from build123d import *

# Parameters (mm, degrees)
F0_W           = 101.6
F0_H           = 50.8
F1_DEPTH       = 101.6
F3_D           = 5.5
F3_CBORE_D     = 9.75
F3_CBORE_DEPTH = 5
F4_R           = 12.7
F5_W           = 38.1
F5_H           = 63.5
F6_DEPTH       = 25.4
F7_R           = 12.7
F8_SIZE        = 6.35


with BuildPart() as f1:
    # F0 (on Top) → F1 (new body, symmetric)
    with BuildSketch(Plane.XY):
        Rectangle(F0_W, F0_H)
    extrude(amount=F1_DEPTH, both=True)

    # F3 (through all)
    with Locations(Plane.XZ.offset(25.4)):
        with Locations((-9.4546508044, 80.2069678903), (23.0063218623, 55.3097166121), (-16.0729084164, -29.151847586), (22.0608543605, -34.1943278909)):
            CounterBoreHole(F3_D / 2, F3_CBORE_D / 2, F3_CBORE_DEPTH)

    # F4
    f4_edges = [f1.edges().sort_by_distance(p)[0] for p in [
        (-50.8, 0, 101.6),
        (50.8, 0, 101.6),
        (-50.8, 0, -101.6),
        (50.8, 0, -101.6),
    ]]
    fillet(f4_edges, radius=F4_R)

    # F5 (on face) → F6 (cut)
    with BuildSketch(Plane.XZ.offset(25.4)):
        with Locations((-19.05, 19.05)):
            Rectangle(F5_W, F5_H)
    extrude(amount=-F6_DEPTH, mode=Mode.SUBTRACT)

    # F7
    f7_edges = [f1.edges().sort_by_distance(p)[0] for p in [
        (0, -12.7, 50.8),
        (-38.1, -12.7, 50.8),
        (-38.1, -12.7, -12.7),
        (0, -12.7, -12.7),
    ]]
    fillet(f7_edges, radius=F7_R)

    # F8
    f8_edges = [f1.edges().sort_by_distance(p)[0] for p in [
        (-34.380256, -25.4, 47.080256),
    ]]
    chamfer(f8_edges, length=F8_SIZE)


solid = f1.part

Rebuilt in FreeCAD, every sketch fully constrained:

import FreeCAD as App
import Part
import Sketcher
Q = App.Units.Quantity


def edges_at(feature, points):
    """Names of the edges that pass closest to the given points."""
    edges = feature.Shape.Edges
    near = lambda p: min(range(len(edges)), key=lambda i: edges[i].distToShape(Part.Vertex(*p))[0])
    return sorted({f"Edge{near(p) + 1}" for p in points})


def add_polygon(sketch, points):
    """Adds a closed chain of lines whose ends are joined by coincident constraints."""
    first, n = sketch.GeometryCount, len(points)
    for a, b in zip(points, points[1:] + points[:1]):
        sketch.addGeometry(Part.LineSegment(App.Vector(*a, 0), App.Vector(*b, 0)), False)
    for i in range(n):
        sketch.addConstraint(Sketcher.Constraint("Coincident", first + i, 2, first + (i + 1) % n, 1))

doc = App.newDocument("Part")
params = doc.addObject("Spreadsheet::Sheet", "Params")
for row, (alias, value) in enumerate([
    ("sketch1_width", "4 in"),
    ("sketch1_height", "2 in"),
    ("pad1_length", "8 in"),
    ("hole_diameter", "5.5 mm"),
    ("hole_cbore_diameter", "9.75 mm"),
    ("hole_cbore_depth", "5 mm"),
    ("fillet_radius", "0.5 in"),
    ("sketch3_width", "1.5 in"),
    ("sketch3_height", "2.5 in"),
    ("pocket1_length", "1 in"),
    ("fillet2_radius", "0.5 in"),
    ("chamfer_size", "0.25 in"),
], start=1):
    params.set(f"A{row}", alias)
    params.set(f"B{row}", "=" + value)
    params.setAlias(f"B{row}", alias)

body = doc.addObject("PartDesign::Body", "Body")

sketch1 = body.newObject("Sketcher::SketchObject", "Sketch")
sketch1.AttachmentSupport = (doc.getObject("XY_Plane"), [""])
sketch1.MapMode = "FlatFace"
add_polygon(sketch1, [(-51, 25), (-51, -25), (51, -25), (51, 25)])
sketch1.addConstraint(Sketcher.Constraint("Vertical", 0))
sketch1.addConstraint(Sketcher.Constraint("Horizontal", 1))
sketch1.addConstraint(Sketcher.Constraint("Vertical", 2))
sketch1.addConstraint(Sketcher.Constraint("Horizontal", 3))
sketch1.addConstraint(Sketcher.Constraint("Symmetric", 0, 2, 2, 2, -1, 1))
sketch1.addConstraint(Sketcher.Constraint("DistanceX", 1, 1, 1, 2, Q("4 in")))
sketch1.addConstraint(Sketcher.Constraint("DistanceY", 0, 2, 0, 1, Q("2 in")))
sketch1.setExpression("Constraints[9]", "Params.sketch1_width")
sketch1.setExpression("Constraints[10]", "Params.sketch1_height")
pad1 = body.newObject("PartDesign::Pad", "Pad")
pad1.Profile = sketch1
pad1.setExpression("Length", "Params.pad1_length")
pad1.Midplane = True

sketch2 = body.newObject("Sketcher::SketchObject", "Sketch001")
sketch2.AttachmentSupport = (doc.getObject("XZ_Plane"), [""])
sketch2.MapMode = "FlatFace"
sketch2.AttachmentOffset = App.Placement(App.Vector(0, 0, 1 * 25.4), App.Rotation())
sketch2.addGeometry(Part.Circle(App.Vector(-9.5, 80.2, 0), App.Vector(0, 0, 1), 2.8), False)
sketch2.addGeometry(Part.Circle(App.Vector(23, 55.3, 0), App.Vector(0, 0, 1), 2.8), False)
sketch2.addGeometry(Part.Circle(App.Vector(-16.1, -29.2, 0), App.Vector(0, 0, 1), 2.8), False)
sketch2.addGeometry(Part.Circle(App.Vector(22.1, -34.2, 0), App.Vector(0, 0, 1), 2.8), False)
sketch2.addConstraint(Sketcher.Constraint("Equal", 0, 1))
sketch2.addConstraint(Sketcher.Constraint("Equal", 1, 2))
sketch2.addConstraint(Sketcher.Constraint("Equal", 2, 3))
sketch2.addConstraint(Sketcher.Constraint("Diameter", 0, 5.5))
sketch2.addConstraint(Sketcher.Constraint("DistanceX", 0, 3, -1, 1, 9.454651))
sketch2.addConstraint(Sketcher.Constraint("DistanceX", -1, 1, 1, 3, 23.006322))
sketch2.addConstraint(Sketcher.Constraint("DistanceX", 2, 3, -1, 1, 16.072908))
sketch2.addConstraint(Sketcher.Constraint("DistanceY", 1, 3, 0, 3, 24.897251))
sketch2.addConstraint(Sketcher.Constraint("DistanceY", 3, 3, 2, 3, 5.04248))
sketch2.addConstraint(Sketcher.Constraint("DistanceY", -1, 1, 0, 3, 80.206968))
sketch2.addConstraint(Sketcher.Constraint("DistanceY", 2, 3, -1, 1, 29.151848))
sketch2.addConstraint(Sketcher.Constraint("DistanceX", -1, 1, 3, 3, 22.060854))
doc.recompute()
hole = body.newObject("PartDesign::Hole", "Hole")
hole.Profile = sketch2
hole.ThreadType = "None"
hole.setExpression("Diameter", "Params.hole_diameter")
hole.DepthType = "ThroughAll"
hole.HoleCutType = "Counterbore"
hole.setExpression("HoleCutDiameter", "Params.hole_cbore_diameter")
hole.setExpression("HoleCutDepth", "Params.hole_cbore_depth")
doc.recompute()

fillet = body.newObject("PartDesign::Fillet", "Fillet")
fillet.Base = (hole, edges_at(hole, [
    (-50.8, 0, 101.6),
    (50.8, 0, 101.6),
    (-50.8, 0, -101.6),
    (50.8, 0, -101.6),
]))
fillet.setExpression("Radius", "Params.fillet_radius")

sketch3 = body.newObject("Sketcher::SketchObject", "Sketch002")
sketch3.AttachmentSupport = (doc.getObject("XZ_Plane"), [""])
sketch3.MapMode = "FlatFace"
sketch3.AttachmentOffset = App.Placement(App.Vector(0, 0, 1 * 25.4), App.Rotation())
add_polygon(sketch3, [(-38, 51), (-38, -13), (0, -13), (0, 51)])
sketch3.addConstraint(Sketcher.Constraint("Vertical", 0))
sketch3.addConstraint(Sketcher.Constraint("Horizontal", 1))
sketch3.addConstraint(Sketcher.Constraint("Vertical", 2))
sketch3.addConstraint(Sketcher.Constraint("Horizontal", 3))
sketch3.addConstraint(Sketcher.Constraint("PointOnObject", 1, 2, -2))
sketch3.addConstraint(Sketcher.Constraint("DistanceX", 1, 1, 1, 2, Q("1.5 in")))
sketch3.addConstraint(Sketcher.Constraint("DistanceY", 0, 2, 0, 1, Q("2.5 in")))
sketch3.addConstraint(Sketcher.Constraint("DistanceY", -1, 1, 2, 2, Q("2 in")))
sketch3.setExpression("Constraints[9]", "Params.sketch3_width")
sketch3.setExpression("Constraints[10]", "Params.sketch3_height")
pocket1 = body.newObject("PartDesign::Pocket", "Pocket")
pocket1.Profile = sketch3
pocket1.setExpression("Length", "Params.pocket1_length")
doc.recompute()

fillet2 = body.newObject("PartDesign::Fillet", "Fillet001")
fillet2.Base = (pocket1, edges_at(pocket1, [
    (0, -12.7, 50.8),
    (-38.1, -12.7, 50.8),
    (-38.1, -12.7, -12.7),
    (0, -12.7, -12.7),
]))
fillet2.setExpression("Radius", "Params.fillet2_radius")
doc.recompute()

chamfer = body.newObject("PartDesign::Chamfer", "Chamfer")
chamfer.Base = (fillet2, edges_at(fillet2, [(-34.38, -25.4, 47.08)]))
chamfer.setExpression("Size", "Params.chamfer_size")

doc.recompute()
